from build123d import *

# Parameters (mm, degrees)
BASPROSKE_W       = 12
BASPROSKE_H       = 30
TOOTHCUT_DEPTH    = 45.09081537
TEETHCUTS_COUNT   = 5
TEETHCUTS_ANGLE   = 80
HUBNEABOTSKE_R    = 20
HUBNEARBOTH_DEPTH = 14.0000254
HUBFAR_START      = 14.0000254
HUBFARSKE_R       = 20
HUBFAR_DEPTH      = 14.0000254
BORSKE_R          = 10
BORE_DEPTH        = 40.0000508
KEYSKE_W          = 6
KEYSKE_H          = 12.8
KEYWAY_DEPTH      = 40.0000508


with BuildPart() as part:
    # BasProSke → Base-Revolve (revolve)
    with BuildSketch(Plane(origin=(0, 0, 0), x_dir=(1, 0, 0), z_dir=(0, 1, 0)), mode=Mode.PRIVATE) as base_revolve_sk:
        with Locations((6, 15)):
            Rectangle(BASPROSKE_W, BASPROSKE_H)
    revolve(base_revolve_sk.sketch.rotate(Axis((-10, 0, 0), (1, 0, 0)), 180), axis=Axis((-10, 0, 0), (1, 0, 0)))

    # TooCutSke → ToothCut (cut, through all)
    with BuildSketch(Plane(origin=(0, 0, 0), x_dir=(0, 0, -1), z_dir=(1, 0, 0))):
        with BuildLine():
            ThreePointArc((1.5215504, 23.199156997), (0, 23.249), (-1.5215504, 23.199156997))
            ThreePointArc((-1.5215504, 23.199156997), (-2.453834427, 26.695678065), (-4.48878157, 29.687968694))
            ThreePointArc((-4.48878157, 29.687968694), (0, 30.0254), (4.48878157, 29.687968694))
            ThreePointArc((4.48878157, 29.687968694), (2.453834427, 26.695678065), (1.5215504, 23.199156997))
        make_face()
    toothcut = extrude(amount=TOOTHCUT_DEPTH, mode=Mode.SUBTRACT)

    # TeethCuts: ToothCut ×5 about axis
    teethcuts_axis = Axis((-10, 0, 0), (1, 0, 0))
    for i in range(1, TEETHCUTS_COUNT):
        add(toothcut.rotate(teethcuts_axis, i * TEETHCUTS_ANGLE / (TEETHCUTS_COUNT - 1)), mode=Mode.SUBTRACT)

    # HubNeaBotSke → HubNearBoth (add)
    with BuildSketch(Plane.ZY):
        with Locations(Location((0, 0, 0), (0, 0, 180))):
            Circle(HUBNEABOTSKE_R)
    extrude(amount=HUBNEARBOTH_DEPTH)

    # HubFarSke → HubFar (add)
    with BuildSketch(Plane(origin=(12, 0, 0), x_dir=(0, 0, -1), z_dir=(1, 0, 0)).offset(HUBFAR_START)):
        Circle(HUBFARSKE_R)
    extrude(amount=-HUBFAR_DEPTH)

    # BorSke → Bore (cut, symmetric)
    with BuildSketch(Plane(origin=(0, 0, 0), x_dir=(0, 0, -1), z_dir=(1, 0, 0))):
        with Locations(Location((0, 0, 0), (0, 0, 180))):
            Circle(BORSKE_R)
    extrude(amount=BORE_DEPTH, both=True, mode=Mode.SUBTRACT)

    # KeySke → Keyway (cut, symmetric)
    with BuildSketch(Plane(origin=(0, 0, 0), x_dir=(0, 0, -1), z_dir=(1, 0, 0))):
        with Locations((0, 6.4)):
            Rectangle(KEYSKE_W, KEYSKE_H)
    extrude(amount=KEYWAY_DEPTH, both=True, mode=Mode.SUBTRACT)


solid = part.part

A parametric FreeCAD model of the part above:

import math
import FreeCAD as App
import Part
import Sketcher
from FreeCAD import Vector
Q = App.Units.Quantity

doc = App.newDocument("Part")
body = doc.addObject("PartDesign::Body", "Body")

# Sketch on XZ plane
sketch1 = body.newObject("Sketcher::SketchObject", "Sketch")
sketch1.AttachmentSupport = (doc.getObject("XZ_Plane"), [""])
sketch1.MapMode = "FlatFace"
sketch1.addGeometry(Part.LineSegment(Vector(0, -30, 0), Vector(0, 0, 0)), False)
sketch1.addGeometry(Part.LineSegment(Vector(0, 0, 0), Vector(12, 0, 0)), False)
sketch1.addGeometry(Part.LineSegment(Vector(12, 0, 0), Vector(12, -30, 0)), False)
sketch1.addGeometry(Part.LineSegment(Vector(12, -30, 0), Vector(0, -30, 0)), False)
sketch1.addConstraint(Sketcher.Constraint("Coincident", 0, 2, 1, 1))
sketch1.addConstraint(Sketcher.Constraint("Coincident", 1, 2, 2, 1))
sketch1.addConstraint(Sketcher.Constraint("Coincident", 2, 2, 3, 1))
sketch1.addConstraint(Sketcher.Constraint("Coincident", 3, 2, 0, 1))
sketch1.addConstraint(Sketcher.Constraint("Vertical", 0))
sketch1.addConstraint(Sketcher.Constraint("Horizontal", 1))
sketch1.addConstraint(Sketcher.Constraint("Vertical", 2))
sketch1.addConstraint(Sketcher.Constraint("Horizontal", 3))
sketch1.addConstraint(Sketcher.Constraint("Coincident", 0, 2, -1, 1))
sketch1.addConstraint(Sketcher.Constraint("DistanceX", 1, 1, 1, 2, Q("12 mm")))
sketch1.addConstraint(Sketcher.Constraint("DistanceY", 0, 1, 0, 2, Q("30 mm")))
revolution = body.newObject("PartDesign::Revolution", "Revolution")
revolution.Profile = sketch1
revolution.ReferenceAxis = (sketch1, ["H_Axis"])
revolution.Angle = 360

# Sketch on YZ plane
sketch2 = body.newObject("Sketcher::SketchObject", "Sketch001")
sketch2.AttachmentSupport = (doc.getObject("YZ_Plane"), [""])
sketch2.MapMode = "FlatFace"
sketch2.addGeometry(Part.ArcOfCircle(Part.Circle(Vector(0, 0, 0), Vector(0, 0, 1), 23.2), math.radians(-3.75), math.radians(3.75)), False)
sketch2.addGeometry(Part.ArcOfCircle(Part.Circle(Vector(22.2, -12.3, 0), Vector(0, 0, 1), 10.8), math.radians(46), math.radians(85)), False)
sketch2.addGeometry(Part.ArcOfCircle(Part.Circle(Vector(0, 0, 0), Vector(0, 0, 1), 30), math.radians(-8.6), math.radians(8.6)), False)
sketch2.addGeometry(Part.ArcOfCircle(Part.Circle(Vector(22.2, 12.3, 0), Vector(0, 0, 1), 10.8), math.radians(-85), math.radians(-46)), False)
sketch2.addConstraint(Sketcher.Constraint("Coincident", 0, 1, 1, 2))
sketch2.addConstraint(Sketcher.Constraint("Coincident", 1, 1, 2, 1))
sketch2.addConstraint(Sketcher.Constraint("Coincident", 2, 2, 3, 2))
sketch2.addConstraint(Sketcher.Constraint("Coincident", 3, 1, 0, 2))
sketch2.addConstraint(Sketcher.Constraint("Coincident", 0, 3, -1, 1))
sketch2.addConstraint(Sketcher.Constraint("Coincident", 2, 3, -1, 1))
sketch2.addConstraint(Sketcher.Constraint("Equal", 1, 3))
sketch2.addConstraint(Sketcher.Constraint("Symmetric", 1, 3, 3, 3, -1))
sketch2.addConstraint(Sketcher.Constraint("Radius", 1, Q("10.8 mm")))
sketch2.addConstraint(Sketcher.Constraint("Radius", 0, Q("23.249 mm")))
sketch2.addConstraint(Sketcher.Constraint("Radius", 2, Q("30.0254 mm")))
sketch2.addConstraint(Sketcher.Constraint("DistanceY", 0, 1, 3, 1, Q("3.043101 mm")))
sketch2.addConstraint(Sketcher.Constraint("DistanceX", -1, 1, 1, 1, Q("29.687969 mm")))
pocket1 = body.newObject("PartDesign::Pocket", "Pocket")
pocket1.Profile = sketch2
pocket1.Type = "ThroughAll"
pocket1.Reversed = True
doc.recompute()

polarpattern = body.newObject("PartDesign::PolarPattern", "PolarPattern")
polarpattern.Originals = [pocket1]
polarpattern.Axis = (doc.getObject("X_Axis"), [""])
polarpattern.Angle = 80
polarpattern.Occurrences = 5
body.Tip = polarpattern

# Sketch on YZ plane
sketch3 = body.newObject("Sketcher::SketchObject", "Sketch002")
sketch3.AttachmentSupport = (doc.getObject("YZ_Plane"), [""])
sketch3.MapMode = "FlatFace"
sketch3.addGeometry(Part.Circle(Vector(0, 0, 0), Vector(0, 0, 1), 20), False)
sketch3.addConstraint(Sketcher.Constraint("Coincident", 0, 3, -1, 1))
sketch3.addConstraint(Sketcher.Constraint("Diameter", 0, Q("40 mm")))
pad1 = body.newObject("PartDesign::Pad", "Pad")
pad1.Profile = sketch3
pad1.Length = 14.000025
pad1.Reversed = True

# Sketch on YZ plane
sketch4 = body.newObject("Sketcher::SketchObject", "Sketch003")
sketch4.AttachmentSupport = (doc.getObject("YZ_Plane"), [""])
sketch4.MapMode = "FlatFace"
sketch4.AttachmentOffset = App.Placement(Vector(0, 0, 26.000025), App.Rotation())
sketch4.addGeometry(Part.Circle(Vector(0, 0, 0), Vector(0, 0, 1), 20), False)
sketch4.addConstraint(Sketcher.Constraint("Coincident", 0, 3, -1, 1))
sketch4.addConstraint(Sketcher.Constraint("Diameter", 0, Q("40 mm")))
pad2 = body.newObject("PartDesign::Pad", "Pad001")
pad2.Profile = sketch4
pad2.Length = 14.000025
pad2.Reversed = True

# Sketch on YZ plane
sketch5 = body.newObject("Sketcher::SketchObject", "Sketch004")
sketch5.AttachmentSupport = (doc.getObject("YZ_Plane"), [""])
sketch5.MapMode = "FlatFace"
sketch5.addGeometry(Part.Circle(Vector(0, 0, 0), Vector(0, 0, 1), 10), False)
sketch5.addConstraint(Sketcher.Constraint("Coincident", 0, 3, -1, 1))
sketch5.addConstraint(Sketcher.Constraint("Diameter", 0, Q("20 mm")))
pocket2 = body.newObject("PartDesign::Pocket", "Pocket001")
pocket2.Profile = sketch5
pocket2.Length = 80.000102
pocket2.Midplane = True

# Sketch on YZ plane
sketch6 = body.newObject("Sketcher::SketchObject", "Sketch005")
sketch6.AttachmentSupport = (doc.getObject("YZ_Plane"), [""])
sketch6.MapMode = "FlatFace"
sketch6.addGeometry(Part.LineSegment(Vector(13, 3, 0), Vector(0, 3, 0)), False)
sketch6.addGeometry(Part.LineSegment(Vector(0, 3, 0), Vector(0, -3, 0)), False)
sketch6.addGeometry(Part.LineSegment(Vector(0, -3, 0), Vector(13, -3, 0)), False)
sketch6.addGeometry(Part.LineSegment(Vector(13, -3, 0), Vector(13, 3, 0)), False)
sketch6.addConstraint(Sketcher.Constraint("Coincident", 0, 2, 1, 1))
sketch6.addConstraint(Sketcher.Constraint("Coincident", 1, 2, 2, 1))
sketch6.addConstraint(Sketcher.Constraint("Coincident", 2, 2, 3, 1))
sketch6.addConstraint(Sketcher.Constraint("Coincident", 3, 2, 0, 1))
sketch6.addConstraint(Sketcher.Constraint("Horizontal", 0))
sketch6.addConstraint(Sketcher.Constraint("Vertical", 1))
sketch6.addConstraint(Sketcher.Constraint("Horizontal", 2))
sketch6.addConstraint(Sketcher.Constraint("Vertical", 3))
sketch6.addConstraint(Sketcher.Constraint("Symmetric", 0, 2, 1, 2, -1, 1))
sketch6.addConstraint(Sketcher.Constraint("DistanceY", 1, 2, 1, 1, Q("6 mm")))
sketch6.addConstraint(Sketcher.Constraint("DistanceX", 0, 2, 0, 1, Q("12.8 mm")))
pocket3 = body.newObject("PartDesign::Pocket", "Pocket002")
pocket3.Profile = sketch6
pocket3.Length = 80.000102
pocket3.Midplane = True

doc.recompute()
